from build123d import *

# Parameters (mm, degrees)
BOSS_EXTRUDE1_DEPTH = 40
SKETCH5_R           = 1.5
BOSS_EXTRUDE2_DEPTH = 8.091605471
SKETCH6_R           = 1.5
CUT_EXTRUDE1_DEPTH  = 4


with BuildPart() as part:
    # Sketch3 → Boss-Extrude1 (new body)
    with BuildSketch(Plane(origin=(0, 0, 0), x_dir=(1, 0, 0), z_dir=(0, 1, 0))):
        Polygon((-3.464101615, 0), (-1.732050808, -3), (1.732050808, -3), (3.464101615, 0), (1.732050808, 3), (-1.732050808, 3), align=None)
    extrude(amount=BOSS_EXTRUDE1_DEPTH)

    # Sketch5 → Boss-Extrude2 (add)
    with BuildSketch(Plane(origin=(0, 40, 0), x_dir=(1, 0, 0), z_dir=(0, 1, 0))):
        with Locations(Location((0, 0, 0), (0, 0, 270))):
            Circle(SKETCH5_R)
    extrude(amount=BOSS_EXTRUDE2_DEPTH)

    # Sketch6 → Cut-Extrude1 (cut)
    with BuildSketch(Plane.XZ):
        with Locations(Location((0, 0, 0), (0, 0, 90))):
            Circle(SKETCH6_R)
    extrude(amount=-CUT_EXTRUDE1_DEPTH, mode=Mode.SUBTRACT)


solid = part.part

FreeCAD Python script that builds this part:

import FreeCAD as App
import Part
import Sketcher
from FreeCAD import Vector
Q = App.Units.Quantity

doc = App.newDocument("Part")
body = doc.addObject("PartDesign::Body", "Body")

# Sketch on XZ plane
sketch1 = body.newObject("Sketcher::SketchObject", "Sketch")
sketch1.AttachmentSupport = (doc.getObject("XZ_Plane"), [""])
sketch1.MapMode = "FlatFace"
sketch1.addGeometry([
    Part.LineSegment(Vector(-3.464102, 0, 0), Vector(-1.732051, 3, 0)),  # 0
    Part.LineSegment(Vector(-1.732051, 3, 0), Vector(1.732051, 3, 0)),  # 1
    Part.LineSegment(Vector(1.732051, 3, 0), Vector(3.464102, 0, 0)),  # 2
    Part.LineSegment(Vector(3.464102, 0, 0), Vector(1.732051, -3, 0)),  # 3
    Part.LineSegment(Vector(1.732051, -3, 0), Vector(-1.732051, -3, 0)),  # 4
    Part.LineSegment(Vector(-1.732051, -3, 0), Vector(-3.464102, 0, 0)),  # 5
], False)
sketch1.addConstraint([
    Sketcher.Constraint("Coincident", 0, 2, 1, 1),
    Sketcher.Constraint("Coincident", 1, 2, 2, 1),
    Sketcher.Constraint("Coincident", 2, 2, 3, 1),
    Sketcher.Constraint("Coincident", 3, 2, 4, 1),
    Sketcher.Constraint("Coincident", 4, 2, 5, 1),
    Sketcher.Constraint("Coincident", 5, 2, 0, 1),
    Sketcher.Constraint("Horizontal", 1),
    Sketcher.Constraint("Horizontal", 4),
    Sketcher.Constraint("Symmetric", 0, 2, 3, 2, -1, 1),
    Sketcher.Constraint("Symmetric", 2, 2, 5, 2, -1, 1),
    Sketcher.Constraint("PointOnObject", 2, 2, -1),
    Sketcher.Constraint("Parallel", 2, 5),
    Sketcher.Constraint("Vertical", 1, 2, 3, 2),
    Sketcher.Constraint("Angle", 0, Q("60 deg")),
    Sketcher.Constraint("DistanceY", -1, 1, 0, 2, Q("3 mm")),
    Sketcher.Constraint("DistanceX", 1, 1, 1, 2, Q("3.464102 mm")),
])
pad1 = body.newObject("PartDesign::Pad", "Pad")
pad1.Profile = sketch1
pad1.Length = 40
pad1.Reversed = True

# Sketch on XZ plane
sketch2 = body.newObject("Sketcher::SketchObject", "Sketch001")
sketch2.AttachmentSupport = (doc.getObject("XZ_Plane"), [""])
sketch2.MapMode = "FlatFace"
sketch2.AttachmentOffset = App.Placement(Vector(0, 0, -40), App.Rotation())
sketch2.addGeometry(Part.Circle(Vector(0, 0, 0), Vector(0, 0, 1), 1.5), False)
sketch2.addConstraint([
    Sketcher.Constraint("Coincident", 0, 3, -1, 1),
    Sketcher.Constraint("Diameter", 0, Q("3 mm")),
])
pad2 = body.newObject("PartDesign::Pad", "Pad001")
pad2.Profile = sketch2
pad2.Length = 8.091605
pad2.Reversed = True

# Sketch on XZ plane
sketch3 = body.newObject("Sketcher::SketchObject", "Sketch002")
sketch3.AttachmentSupport = (doc.getObject("XZ_Plane"), [""])
sketch3.MapMode = "FlatFace"
sketch3.addGeometry(Part.Circle(Vector(0, 0, 0), Vector(0, 0, 1), 1.5), False)
sketch3.addConstraint([
    Sketcher.Constraint("Coincident", 0, 3, -1, 1),
    Sketcher.Constraint("Diameter", 0, Q("3 mm")),
])
pocket1 = body.newObject("PartDesign::Pocket", "Pocket")
pocket1.Profile = sketch3
pocket1.Length = 4

doc.recompute()
